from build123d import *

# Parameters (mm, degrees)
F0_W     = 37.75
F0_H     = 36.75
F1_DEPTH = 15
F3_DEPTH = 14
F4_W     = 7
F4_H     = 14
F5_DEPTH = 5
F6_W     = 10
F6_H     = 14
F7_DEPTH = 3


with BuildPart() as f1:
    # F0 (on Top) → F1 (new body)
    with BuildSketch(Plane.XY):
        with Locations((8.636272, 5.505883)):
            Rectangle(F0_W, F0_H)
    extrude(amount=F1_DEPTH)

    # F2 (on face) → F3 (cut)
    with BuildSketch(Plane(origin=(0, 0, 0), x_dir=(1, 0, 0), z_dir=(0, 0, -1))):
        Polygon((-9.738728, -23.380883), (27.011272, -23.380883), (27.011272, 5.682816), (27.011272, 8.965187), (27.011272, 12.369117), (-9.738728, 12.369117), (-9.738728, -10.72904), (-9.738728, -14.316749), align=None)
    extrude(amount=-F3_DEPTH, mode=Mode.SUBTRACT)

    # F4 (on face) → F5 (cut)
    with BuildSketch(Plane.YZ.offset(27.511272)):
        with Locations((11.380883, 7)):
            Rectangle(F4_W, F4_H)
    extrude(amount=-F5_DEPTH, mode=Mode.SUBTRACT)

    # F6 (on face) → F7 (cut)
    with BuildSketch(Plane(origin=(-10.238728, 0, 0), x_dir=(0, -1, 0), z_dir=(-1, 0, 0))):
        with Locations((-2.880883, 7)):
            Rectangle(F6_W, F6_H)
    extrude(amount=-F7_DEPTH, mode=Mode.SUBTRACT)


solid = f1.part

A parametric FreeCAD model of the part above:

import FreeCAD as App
import Part
import Sketcher

V = App.Vector

doc = App.newDocument("Part")
params = doc.addObject("Spreadsheet::Sheet", "Params")
for row, (alias, value) in enumerate([
    ("sketch1_width", "37.75 mm"),
    ("sketch1_height", "36.75 mm"),
    ("pad1_length", "15 mm"),
    ("sketch2_width", "36.75 mm"),
    ("sketch2_height", "35.75 mm"),
    ("pocket1_length", "14 mm"),
    ("sketch3_width", "7 mm"),
    ("sketch3_height", "14 mm"),
    ("pocket2_length", "5 mm"),
    ("sketch4_width", "10 mm"),
    ("sketch4_height", "14 mm"),
    ("pocket3_length", "3 mm"),
], start=1):
    params.set(f"A{row}", alias)
    params.set(f"B{row}", "=" + value)
    params.setAlias(f"B{row}", alias)

body = doc.addObject("PartDesign::Body", "Body")

sketch1 = body.newObject("Sketcher::SketchObject", "Sketch")
sketch1.AttachmentSupport = (doc.getObject("XY_Plane"), [""])
sketch1.MapMode = "FlatFace"
sketch1.addGeometry([
    Part.LineSegment(V(-10.238728, 23.880883, 0), V(-10.238728, -12.869117, 0)),
    Part.LineSegment(V(-10.238728, -12.869117, 0), V(27.511272, -12.869117, 0)),
    Part.LineSegment(V(27.511272, -12.869117, 0), V(27.511272, 23.880883, 0)),
    Part.LineSegment(V(27.511272, 23.880883, 0), V(-10.238728, 23.880883, 0)),
], False)
sketch1.addConstraint([
    Sketcher.Constraint("Coincident", 0, 2, 1, 1),
    Sketcher.Constraint("Coincident", 1, 2, 2, 1),
    Sketcher.Constraint("Coincident", 2, 2, 3, 1),
    Sketcher.Constraint("Coincident", 3, 2, 0, 1),
    Sketcher.Constraint("Vertical", 0),
    Sketcher.Constraint("Horizontal", 1),
    Sketcher.Constraint("Vertical", 2),
    Sketcher.Constraint("Horizontal", 3),
    Sketcher.Constraint("DistanceX", 1, 1, 1, 2, 37.75),
    Sketcher.Constraint("DistanceY", 0, 2, 0, 1, 36.75),
    Sketcher.Constraint("DistanceX", 0, 2, -1, 1, 10.238728),
    Sketcher.Constraint("DistanceY", 0, 2, -1, 1, 12.869117),
])
sketch1.setExpression("Constraints[8]", "Params.sketch1_width")
sketch1.setExpression("Constraints[9]", "Params.sketch1_height")
pad1 = body.newObject("PartDesign::Pad", "Pad")
pad1.Profile = sketch1
pad1.setExpression("Length", "Params.pad1_length")

sketch2 = body.newObject("Sketcher::SketchObject", "Sketch001")
sketch2.AttachmentSupport = (doc.getObject("XY_Plane"), [""])
sketch2.MapMode = "FlatFace"
sketch2.addGeometry([
    Part.LineSegment(V(-9.738728, 23.380883, 0), V(27.011272, 23.380883, 0)),
    Part.LineSegment(V(27.011272, 23.380883, 0), V(27.011272, -12.369117, 0)),
    Part.LineSegment(V(27.011272, -12.369117, 0), V(-9.738728, -12.369117, 0)),
    Part.LineSegment(V(-9.738728, -12.369117, 0), V(-9.738728, 23.380883, 0)),
], False)
sketch2.addConstraint([
    Sketcher.Constraint("Coincident", 0, 2, 1, 1),
    Sketcher.Constraint("Coincident", 1, 2, 2, 1),
    Sketcher.Constraint("Coincident", 2, 2, 3, 1),
    Sketcher.Constraint("Coincident", 3, 2, 0, 1),
    Sketcher.Constraint("Horizontal", 0),
    Sketcher.Constraint("Vertical", 1),
    Sketcher.Constraint("Horizontal", 2),
    Sketcher.Constraint("Vertical", 3),
    Sketcher.Constraint("DistanceX", 0, 1, 0, 2, 36.75),
    Sketcher.Constraint("DistanceY", 1, 2, 1, 1, 35.75),
    Sketcher.Constraint("DistanceX", -1, 1, 0, 2, 27.011272),
    Sketcher.Constraint("DistanceY", -1, 1, 0, 2, 23.380883),
])
sketch2.setExpression("Constraints[8]", "Params.sketch2_width")
sketch2.setExpression("Constraints[9]", "Params.sketch2_height")
pocket1 = body.newObject("PartDesign::Pocket", "Pocket")
pocket1.Profile = sketch2
pocket1.setExpression("Length", "Params.pocket1_length")
pocket1.Reversed = True

sketch3 = body.newObject("Sketcher::SketchObject", "Sketch002")
sketch3.AttachmentSupport = (doc.getObject("YZ_Plane"), [""])
sketch3.MapMode = "FlatFace"
sketch3.AttachmentOffset = App.Placement(V(0, 0, 27.511272), App.Rotation())
sketch3.addGeometry([
    Part.LineSegment(V(7.880883, 14, 0), V(7.880883, 0, 0)),
    Part.LineSegment(V(7.880883, 0, 0), V(14.880883, 0, 0)),
    Part.LineSegment(V(14.880883, 0, 0), V(14.880883, 14, 0)),
    Part.LineSegment(V(14.880883, 14, 0), V(7.880883, 14, 0)),
], False)
sketch3.addConstraint([
    Sketcher.Constraint("Coincident", 0, 2, 1, 1),
    Sketcher.Constraint("Coincident", 1, 2, 2, 1),
    Sketcher.Constraint("Coincident", 2, 2, 3, 1),
    Sketcher.Constraint("Coincident", 3, 2, 0, 1),
    Sketcher.Constraint("Vertical", 0),
    Sketcher.Constraint("Horizontal", 1),
    Sketcher.Constraint("Vertical", 2),
    Sketcher.Constraint("Horizontal", 3),
    Sketcher.Constraint("PointOnObject", 0, 2, -1),
    Sketcher.Constraint("DistanceX", 1, 1, 1, 2, 7.0),
    Sketcher.Constraint("DistanceY", 0, 2, 0, 1, 14.0),
    Sketcher.Constraint("DistanceX", -1, 1, 0, 2, 7.880883),
])
sketch3.setExpression("Constraints[9]", "Params.sketch3_width")
sketch3.setExpression("Constraints[10]", "Params.sketch3_height")
pocket2 = body.newObject("PartDesign::Pocket", "Pocket001")
pocket2.Profile = sketch3
pocket2.setExpression("Length", "Params.pocket2_length")

sketch4 = body.newObject("Sketcher::SketchObject", "Sketch003")
sketch4.AttachmentSupport = (doc.getObject("YZ_Plane"), [""])
sketch4.MapMode = "FlatFace"
sketch4.AttachmentOffset = App.Placement(V(0, 0, -10.238728), App.Rotation())
sketch4.addGeometry([
    Part.LineSegment(V(7.880883, 14, 0), V(7.880883, 0, 0)),
    Part.LineSegment(V(7.880883, 0, 0), V(-2.119117, 0, 0)),
    Part.LineSegment(V(-2.119117, 0, 0), V(-2.119117, 14, 0)),
    Part.LineSegment(V(-2.119117, 14, 0), V(7.880883, 14, 0)),
], False)
sketch4.addConstraint([
    Sketcher.Constraint("Coincident", 0, 2, 1, 1),
    Sketcher.Constraint("Coincident", 1, 2, 2, 1),
    Sketcher.Constraint("Coincident", 2, 2, 3, 1),
    Sketcher.Constraint("Coincident", 3, 2, 0, 1),
    Sketcher.Constraint("Vertical", 0),
    Sketcher.Constraint("Horizontal", 1),
    Sketcher.Constraint("Vertical", 2),
    Sketcher.Constraint("Horizontal", 3),
    Sketcher.Constraint("PointOnObject", 0, 2, -1),
    Sketcher.Constraint("DistanceX", 1, 2, 1, 1, 10.0),
    Sketcher.Constraint("DistanceY", 0, 2, 0, 1, 14.0),
    Sketcher.Constraint("DistanceX", -1, 1, 0, 2, 7.880883),
])
sketch4.setExpression("Constraints[9]", "Params.sketch4_width")
sketch4.setExpression("Constraints[10]", "Params.sketch4_height")
pocket3 = body.newObject("PartDesign::Pocket", "Pocket002")
pocket3.Profile = sketch4
pocket3.setExpression("Length", "Params.pocket3_length")
pocket3.Reversed = True

doc.recompute()
